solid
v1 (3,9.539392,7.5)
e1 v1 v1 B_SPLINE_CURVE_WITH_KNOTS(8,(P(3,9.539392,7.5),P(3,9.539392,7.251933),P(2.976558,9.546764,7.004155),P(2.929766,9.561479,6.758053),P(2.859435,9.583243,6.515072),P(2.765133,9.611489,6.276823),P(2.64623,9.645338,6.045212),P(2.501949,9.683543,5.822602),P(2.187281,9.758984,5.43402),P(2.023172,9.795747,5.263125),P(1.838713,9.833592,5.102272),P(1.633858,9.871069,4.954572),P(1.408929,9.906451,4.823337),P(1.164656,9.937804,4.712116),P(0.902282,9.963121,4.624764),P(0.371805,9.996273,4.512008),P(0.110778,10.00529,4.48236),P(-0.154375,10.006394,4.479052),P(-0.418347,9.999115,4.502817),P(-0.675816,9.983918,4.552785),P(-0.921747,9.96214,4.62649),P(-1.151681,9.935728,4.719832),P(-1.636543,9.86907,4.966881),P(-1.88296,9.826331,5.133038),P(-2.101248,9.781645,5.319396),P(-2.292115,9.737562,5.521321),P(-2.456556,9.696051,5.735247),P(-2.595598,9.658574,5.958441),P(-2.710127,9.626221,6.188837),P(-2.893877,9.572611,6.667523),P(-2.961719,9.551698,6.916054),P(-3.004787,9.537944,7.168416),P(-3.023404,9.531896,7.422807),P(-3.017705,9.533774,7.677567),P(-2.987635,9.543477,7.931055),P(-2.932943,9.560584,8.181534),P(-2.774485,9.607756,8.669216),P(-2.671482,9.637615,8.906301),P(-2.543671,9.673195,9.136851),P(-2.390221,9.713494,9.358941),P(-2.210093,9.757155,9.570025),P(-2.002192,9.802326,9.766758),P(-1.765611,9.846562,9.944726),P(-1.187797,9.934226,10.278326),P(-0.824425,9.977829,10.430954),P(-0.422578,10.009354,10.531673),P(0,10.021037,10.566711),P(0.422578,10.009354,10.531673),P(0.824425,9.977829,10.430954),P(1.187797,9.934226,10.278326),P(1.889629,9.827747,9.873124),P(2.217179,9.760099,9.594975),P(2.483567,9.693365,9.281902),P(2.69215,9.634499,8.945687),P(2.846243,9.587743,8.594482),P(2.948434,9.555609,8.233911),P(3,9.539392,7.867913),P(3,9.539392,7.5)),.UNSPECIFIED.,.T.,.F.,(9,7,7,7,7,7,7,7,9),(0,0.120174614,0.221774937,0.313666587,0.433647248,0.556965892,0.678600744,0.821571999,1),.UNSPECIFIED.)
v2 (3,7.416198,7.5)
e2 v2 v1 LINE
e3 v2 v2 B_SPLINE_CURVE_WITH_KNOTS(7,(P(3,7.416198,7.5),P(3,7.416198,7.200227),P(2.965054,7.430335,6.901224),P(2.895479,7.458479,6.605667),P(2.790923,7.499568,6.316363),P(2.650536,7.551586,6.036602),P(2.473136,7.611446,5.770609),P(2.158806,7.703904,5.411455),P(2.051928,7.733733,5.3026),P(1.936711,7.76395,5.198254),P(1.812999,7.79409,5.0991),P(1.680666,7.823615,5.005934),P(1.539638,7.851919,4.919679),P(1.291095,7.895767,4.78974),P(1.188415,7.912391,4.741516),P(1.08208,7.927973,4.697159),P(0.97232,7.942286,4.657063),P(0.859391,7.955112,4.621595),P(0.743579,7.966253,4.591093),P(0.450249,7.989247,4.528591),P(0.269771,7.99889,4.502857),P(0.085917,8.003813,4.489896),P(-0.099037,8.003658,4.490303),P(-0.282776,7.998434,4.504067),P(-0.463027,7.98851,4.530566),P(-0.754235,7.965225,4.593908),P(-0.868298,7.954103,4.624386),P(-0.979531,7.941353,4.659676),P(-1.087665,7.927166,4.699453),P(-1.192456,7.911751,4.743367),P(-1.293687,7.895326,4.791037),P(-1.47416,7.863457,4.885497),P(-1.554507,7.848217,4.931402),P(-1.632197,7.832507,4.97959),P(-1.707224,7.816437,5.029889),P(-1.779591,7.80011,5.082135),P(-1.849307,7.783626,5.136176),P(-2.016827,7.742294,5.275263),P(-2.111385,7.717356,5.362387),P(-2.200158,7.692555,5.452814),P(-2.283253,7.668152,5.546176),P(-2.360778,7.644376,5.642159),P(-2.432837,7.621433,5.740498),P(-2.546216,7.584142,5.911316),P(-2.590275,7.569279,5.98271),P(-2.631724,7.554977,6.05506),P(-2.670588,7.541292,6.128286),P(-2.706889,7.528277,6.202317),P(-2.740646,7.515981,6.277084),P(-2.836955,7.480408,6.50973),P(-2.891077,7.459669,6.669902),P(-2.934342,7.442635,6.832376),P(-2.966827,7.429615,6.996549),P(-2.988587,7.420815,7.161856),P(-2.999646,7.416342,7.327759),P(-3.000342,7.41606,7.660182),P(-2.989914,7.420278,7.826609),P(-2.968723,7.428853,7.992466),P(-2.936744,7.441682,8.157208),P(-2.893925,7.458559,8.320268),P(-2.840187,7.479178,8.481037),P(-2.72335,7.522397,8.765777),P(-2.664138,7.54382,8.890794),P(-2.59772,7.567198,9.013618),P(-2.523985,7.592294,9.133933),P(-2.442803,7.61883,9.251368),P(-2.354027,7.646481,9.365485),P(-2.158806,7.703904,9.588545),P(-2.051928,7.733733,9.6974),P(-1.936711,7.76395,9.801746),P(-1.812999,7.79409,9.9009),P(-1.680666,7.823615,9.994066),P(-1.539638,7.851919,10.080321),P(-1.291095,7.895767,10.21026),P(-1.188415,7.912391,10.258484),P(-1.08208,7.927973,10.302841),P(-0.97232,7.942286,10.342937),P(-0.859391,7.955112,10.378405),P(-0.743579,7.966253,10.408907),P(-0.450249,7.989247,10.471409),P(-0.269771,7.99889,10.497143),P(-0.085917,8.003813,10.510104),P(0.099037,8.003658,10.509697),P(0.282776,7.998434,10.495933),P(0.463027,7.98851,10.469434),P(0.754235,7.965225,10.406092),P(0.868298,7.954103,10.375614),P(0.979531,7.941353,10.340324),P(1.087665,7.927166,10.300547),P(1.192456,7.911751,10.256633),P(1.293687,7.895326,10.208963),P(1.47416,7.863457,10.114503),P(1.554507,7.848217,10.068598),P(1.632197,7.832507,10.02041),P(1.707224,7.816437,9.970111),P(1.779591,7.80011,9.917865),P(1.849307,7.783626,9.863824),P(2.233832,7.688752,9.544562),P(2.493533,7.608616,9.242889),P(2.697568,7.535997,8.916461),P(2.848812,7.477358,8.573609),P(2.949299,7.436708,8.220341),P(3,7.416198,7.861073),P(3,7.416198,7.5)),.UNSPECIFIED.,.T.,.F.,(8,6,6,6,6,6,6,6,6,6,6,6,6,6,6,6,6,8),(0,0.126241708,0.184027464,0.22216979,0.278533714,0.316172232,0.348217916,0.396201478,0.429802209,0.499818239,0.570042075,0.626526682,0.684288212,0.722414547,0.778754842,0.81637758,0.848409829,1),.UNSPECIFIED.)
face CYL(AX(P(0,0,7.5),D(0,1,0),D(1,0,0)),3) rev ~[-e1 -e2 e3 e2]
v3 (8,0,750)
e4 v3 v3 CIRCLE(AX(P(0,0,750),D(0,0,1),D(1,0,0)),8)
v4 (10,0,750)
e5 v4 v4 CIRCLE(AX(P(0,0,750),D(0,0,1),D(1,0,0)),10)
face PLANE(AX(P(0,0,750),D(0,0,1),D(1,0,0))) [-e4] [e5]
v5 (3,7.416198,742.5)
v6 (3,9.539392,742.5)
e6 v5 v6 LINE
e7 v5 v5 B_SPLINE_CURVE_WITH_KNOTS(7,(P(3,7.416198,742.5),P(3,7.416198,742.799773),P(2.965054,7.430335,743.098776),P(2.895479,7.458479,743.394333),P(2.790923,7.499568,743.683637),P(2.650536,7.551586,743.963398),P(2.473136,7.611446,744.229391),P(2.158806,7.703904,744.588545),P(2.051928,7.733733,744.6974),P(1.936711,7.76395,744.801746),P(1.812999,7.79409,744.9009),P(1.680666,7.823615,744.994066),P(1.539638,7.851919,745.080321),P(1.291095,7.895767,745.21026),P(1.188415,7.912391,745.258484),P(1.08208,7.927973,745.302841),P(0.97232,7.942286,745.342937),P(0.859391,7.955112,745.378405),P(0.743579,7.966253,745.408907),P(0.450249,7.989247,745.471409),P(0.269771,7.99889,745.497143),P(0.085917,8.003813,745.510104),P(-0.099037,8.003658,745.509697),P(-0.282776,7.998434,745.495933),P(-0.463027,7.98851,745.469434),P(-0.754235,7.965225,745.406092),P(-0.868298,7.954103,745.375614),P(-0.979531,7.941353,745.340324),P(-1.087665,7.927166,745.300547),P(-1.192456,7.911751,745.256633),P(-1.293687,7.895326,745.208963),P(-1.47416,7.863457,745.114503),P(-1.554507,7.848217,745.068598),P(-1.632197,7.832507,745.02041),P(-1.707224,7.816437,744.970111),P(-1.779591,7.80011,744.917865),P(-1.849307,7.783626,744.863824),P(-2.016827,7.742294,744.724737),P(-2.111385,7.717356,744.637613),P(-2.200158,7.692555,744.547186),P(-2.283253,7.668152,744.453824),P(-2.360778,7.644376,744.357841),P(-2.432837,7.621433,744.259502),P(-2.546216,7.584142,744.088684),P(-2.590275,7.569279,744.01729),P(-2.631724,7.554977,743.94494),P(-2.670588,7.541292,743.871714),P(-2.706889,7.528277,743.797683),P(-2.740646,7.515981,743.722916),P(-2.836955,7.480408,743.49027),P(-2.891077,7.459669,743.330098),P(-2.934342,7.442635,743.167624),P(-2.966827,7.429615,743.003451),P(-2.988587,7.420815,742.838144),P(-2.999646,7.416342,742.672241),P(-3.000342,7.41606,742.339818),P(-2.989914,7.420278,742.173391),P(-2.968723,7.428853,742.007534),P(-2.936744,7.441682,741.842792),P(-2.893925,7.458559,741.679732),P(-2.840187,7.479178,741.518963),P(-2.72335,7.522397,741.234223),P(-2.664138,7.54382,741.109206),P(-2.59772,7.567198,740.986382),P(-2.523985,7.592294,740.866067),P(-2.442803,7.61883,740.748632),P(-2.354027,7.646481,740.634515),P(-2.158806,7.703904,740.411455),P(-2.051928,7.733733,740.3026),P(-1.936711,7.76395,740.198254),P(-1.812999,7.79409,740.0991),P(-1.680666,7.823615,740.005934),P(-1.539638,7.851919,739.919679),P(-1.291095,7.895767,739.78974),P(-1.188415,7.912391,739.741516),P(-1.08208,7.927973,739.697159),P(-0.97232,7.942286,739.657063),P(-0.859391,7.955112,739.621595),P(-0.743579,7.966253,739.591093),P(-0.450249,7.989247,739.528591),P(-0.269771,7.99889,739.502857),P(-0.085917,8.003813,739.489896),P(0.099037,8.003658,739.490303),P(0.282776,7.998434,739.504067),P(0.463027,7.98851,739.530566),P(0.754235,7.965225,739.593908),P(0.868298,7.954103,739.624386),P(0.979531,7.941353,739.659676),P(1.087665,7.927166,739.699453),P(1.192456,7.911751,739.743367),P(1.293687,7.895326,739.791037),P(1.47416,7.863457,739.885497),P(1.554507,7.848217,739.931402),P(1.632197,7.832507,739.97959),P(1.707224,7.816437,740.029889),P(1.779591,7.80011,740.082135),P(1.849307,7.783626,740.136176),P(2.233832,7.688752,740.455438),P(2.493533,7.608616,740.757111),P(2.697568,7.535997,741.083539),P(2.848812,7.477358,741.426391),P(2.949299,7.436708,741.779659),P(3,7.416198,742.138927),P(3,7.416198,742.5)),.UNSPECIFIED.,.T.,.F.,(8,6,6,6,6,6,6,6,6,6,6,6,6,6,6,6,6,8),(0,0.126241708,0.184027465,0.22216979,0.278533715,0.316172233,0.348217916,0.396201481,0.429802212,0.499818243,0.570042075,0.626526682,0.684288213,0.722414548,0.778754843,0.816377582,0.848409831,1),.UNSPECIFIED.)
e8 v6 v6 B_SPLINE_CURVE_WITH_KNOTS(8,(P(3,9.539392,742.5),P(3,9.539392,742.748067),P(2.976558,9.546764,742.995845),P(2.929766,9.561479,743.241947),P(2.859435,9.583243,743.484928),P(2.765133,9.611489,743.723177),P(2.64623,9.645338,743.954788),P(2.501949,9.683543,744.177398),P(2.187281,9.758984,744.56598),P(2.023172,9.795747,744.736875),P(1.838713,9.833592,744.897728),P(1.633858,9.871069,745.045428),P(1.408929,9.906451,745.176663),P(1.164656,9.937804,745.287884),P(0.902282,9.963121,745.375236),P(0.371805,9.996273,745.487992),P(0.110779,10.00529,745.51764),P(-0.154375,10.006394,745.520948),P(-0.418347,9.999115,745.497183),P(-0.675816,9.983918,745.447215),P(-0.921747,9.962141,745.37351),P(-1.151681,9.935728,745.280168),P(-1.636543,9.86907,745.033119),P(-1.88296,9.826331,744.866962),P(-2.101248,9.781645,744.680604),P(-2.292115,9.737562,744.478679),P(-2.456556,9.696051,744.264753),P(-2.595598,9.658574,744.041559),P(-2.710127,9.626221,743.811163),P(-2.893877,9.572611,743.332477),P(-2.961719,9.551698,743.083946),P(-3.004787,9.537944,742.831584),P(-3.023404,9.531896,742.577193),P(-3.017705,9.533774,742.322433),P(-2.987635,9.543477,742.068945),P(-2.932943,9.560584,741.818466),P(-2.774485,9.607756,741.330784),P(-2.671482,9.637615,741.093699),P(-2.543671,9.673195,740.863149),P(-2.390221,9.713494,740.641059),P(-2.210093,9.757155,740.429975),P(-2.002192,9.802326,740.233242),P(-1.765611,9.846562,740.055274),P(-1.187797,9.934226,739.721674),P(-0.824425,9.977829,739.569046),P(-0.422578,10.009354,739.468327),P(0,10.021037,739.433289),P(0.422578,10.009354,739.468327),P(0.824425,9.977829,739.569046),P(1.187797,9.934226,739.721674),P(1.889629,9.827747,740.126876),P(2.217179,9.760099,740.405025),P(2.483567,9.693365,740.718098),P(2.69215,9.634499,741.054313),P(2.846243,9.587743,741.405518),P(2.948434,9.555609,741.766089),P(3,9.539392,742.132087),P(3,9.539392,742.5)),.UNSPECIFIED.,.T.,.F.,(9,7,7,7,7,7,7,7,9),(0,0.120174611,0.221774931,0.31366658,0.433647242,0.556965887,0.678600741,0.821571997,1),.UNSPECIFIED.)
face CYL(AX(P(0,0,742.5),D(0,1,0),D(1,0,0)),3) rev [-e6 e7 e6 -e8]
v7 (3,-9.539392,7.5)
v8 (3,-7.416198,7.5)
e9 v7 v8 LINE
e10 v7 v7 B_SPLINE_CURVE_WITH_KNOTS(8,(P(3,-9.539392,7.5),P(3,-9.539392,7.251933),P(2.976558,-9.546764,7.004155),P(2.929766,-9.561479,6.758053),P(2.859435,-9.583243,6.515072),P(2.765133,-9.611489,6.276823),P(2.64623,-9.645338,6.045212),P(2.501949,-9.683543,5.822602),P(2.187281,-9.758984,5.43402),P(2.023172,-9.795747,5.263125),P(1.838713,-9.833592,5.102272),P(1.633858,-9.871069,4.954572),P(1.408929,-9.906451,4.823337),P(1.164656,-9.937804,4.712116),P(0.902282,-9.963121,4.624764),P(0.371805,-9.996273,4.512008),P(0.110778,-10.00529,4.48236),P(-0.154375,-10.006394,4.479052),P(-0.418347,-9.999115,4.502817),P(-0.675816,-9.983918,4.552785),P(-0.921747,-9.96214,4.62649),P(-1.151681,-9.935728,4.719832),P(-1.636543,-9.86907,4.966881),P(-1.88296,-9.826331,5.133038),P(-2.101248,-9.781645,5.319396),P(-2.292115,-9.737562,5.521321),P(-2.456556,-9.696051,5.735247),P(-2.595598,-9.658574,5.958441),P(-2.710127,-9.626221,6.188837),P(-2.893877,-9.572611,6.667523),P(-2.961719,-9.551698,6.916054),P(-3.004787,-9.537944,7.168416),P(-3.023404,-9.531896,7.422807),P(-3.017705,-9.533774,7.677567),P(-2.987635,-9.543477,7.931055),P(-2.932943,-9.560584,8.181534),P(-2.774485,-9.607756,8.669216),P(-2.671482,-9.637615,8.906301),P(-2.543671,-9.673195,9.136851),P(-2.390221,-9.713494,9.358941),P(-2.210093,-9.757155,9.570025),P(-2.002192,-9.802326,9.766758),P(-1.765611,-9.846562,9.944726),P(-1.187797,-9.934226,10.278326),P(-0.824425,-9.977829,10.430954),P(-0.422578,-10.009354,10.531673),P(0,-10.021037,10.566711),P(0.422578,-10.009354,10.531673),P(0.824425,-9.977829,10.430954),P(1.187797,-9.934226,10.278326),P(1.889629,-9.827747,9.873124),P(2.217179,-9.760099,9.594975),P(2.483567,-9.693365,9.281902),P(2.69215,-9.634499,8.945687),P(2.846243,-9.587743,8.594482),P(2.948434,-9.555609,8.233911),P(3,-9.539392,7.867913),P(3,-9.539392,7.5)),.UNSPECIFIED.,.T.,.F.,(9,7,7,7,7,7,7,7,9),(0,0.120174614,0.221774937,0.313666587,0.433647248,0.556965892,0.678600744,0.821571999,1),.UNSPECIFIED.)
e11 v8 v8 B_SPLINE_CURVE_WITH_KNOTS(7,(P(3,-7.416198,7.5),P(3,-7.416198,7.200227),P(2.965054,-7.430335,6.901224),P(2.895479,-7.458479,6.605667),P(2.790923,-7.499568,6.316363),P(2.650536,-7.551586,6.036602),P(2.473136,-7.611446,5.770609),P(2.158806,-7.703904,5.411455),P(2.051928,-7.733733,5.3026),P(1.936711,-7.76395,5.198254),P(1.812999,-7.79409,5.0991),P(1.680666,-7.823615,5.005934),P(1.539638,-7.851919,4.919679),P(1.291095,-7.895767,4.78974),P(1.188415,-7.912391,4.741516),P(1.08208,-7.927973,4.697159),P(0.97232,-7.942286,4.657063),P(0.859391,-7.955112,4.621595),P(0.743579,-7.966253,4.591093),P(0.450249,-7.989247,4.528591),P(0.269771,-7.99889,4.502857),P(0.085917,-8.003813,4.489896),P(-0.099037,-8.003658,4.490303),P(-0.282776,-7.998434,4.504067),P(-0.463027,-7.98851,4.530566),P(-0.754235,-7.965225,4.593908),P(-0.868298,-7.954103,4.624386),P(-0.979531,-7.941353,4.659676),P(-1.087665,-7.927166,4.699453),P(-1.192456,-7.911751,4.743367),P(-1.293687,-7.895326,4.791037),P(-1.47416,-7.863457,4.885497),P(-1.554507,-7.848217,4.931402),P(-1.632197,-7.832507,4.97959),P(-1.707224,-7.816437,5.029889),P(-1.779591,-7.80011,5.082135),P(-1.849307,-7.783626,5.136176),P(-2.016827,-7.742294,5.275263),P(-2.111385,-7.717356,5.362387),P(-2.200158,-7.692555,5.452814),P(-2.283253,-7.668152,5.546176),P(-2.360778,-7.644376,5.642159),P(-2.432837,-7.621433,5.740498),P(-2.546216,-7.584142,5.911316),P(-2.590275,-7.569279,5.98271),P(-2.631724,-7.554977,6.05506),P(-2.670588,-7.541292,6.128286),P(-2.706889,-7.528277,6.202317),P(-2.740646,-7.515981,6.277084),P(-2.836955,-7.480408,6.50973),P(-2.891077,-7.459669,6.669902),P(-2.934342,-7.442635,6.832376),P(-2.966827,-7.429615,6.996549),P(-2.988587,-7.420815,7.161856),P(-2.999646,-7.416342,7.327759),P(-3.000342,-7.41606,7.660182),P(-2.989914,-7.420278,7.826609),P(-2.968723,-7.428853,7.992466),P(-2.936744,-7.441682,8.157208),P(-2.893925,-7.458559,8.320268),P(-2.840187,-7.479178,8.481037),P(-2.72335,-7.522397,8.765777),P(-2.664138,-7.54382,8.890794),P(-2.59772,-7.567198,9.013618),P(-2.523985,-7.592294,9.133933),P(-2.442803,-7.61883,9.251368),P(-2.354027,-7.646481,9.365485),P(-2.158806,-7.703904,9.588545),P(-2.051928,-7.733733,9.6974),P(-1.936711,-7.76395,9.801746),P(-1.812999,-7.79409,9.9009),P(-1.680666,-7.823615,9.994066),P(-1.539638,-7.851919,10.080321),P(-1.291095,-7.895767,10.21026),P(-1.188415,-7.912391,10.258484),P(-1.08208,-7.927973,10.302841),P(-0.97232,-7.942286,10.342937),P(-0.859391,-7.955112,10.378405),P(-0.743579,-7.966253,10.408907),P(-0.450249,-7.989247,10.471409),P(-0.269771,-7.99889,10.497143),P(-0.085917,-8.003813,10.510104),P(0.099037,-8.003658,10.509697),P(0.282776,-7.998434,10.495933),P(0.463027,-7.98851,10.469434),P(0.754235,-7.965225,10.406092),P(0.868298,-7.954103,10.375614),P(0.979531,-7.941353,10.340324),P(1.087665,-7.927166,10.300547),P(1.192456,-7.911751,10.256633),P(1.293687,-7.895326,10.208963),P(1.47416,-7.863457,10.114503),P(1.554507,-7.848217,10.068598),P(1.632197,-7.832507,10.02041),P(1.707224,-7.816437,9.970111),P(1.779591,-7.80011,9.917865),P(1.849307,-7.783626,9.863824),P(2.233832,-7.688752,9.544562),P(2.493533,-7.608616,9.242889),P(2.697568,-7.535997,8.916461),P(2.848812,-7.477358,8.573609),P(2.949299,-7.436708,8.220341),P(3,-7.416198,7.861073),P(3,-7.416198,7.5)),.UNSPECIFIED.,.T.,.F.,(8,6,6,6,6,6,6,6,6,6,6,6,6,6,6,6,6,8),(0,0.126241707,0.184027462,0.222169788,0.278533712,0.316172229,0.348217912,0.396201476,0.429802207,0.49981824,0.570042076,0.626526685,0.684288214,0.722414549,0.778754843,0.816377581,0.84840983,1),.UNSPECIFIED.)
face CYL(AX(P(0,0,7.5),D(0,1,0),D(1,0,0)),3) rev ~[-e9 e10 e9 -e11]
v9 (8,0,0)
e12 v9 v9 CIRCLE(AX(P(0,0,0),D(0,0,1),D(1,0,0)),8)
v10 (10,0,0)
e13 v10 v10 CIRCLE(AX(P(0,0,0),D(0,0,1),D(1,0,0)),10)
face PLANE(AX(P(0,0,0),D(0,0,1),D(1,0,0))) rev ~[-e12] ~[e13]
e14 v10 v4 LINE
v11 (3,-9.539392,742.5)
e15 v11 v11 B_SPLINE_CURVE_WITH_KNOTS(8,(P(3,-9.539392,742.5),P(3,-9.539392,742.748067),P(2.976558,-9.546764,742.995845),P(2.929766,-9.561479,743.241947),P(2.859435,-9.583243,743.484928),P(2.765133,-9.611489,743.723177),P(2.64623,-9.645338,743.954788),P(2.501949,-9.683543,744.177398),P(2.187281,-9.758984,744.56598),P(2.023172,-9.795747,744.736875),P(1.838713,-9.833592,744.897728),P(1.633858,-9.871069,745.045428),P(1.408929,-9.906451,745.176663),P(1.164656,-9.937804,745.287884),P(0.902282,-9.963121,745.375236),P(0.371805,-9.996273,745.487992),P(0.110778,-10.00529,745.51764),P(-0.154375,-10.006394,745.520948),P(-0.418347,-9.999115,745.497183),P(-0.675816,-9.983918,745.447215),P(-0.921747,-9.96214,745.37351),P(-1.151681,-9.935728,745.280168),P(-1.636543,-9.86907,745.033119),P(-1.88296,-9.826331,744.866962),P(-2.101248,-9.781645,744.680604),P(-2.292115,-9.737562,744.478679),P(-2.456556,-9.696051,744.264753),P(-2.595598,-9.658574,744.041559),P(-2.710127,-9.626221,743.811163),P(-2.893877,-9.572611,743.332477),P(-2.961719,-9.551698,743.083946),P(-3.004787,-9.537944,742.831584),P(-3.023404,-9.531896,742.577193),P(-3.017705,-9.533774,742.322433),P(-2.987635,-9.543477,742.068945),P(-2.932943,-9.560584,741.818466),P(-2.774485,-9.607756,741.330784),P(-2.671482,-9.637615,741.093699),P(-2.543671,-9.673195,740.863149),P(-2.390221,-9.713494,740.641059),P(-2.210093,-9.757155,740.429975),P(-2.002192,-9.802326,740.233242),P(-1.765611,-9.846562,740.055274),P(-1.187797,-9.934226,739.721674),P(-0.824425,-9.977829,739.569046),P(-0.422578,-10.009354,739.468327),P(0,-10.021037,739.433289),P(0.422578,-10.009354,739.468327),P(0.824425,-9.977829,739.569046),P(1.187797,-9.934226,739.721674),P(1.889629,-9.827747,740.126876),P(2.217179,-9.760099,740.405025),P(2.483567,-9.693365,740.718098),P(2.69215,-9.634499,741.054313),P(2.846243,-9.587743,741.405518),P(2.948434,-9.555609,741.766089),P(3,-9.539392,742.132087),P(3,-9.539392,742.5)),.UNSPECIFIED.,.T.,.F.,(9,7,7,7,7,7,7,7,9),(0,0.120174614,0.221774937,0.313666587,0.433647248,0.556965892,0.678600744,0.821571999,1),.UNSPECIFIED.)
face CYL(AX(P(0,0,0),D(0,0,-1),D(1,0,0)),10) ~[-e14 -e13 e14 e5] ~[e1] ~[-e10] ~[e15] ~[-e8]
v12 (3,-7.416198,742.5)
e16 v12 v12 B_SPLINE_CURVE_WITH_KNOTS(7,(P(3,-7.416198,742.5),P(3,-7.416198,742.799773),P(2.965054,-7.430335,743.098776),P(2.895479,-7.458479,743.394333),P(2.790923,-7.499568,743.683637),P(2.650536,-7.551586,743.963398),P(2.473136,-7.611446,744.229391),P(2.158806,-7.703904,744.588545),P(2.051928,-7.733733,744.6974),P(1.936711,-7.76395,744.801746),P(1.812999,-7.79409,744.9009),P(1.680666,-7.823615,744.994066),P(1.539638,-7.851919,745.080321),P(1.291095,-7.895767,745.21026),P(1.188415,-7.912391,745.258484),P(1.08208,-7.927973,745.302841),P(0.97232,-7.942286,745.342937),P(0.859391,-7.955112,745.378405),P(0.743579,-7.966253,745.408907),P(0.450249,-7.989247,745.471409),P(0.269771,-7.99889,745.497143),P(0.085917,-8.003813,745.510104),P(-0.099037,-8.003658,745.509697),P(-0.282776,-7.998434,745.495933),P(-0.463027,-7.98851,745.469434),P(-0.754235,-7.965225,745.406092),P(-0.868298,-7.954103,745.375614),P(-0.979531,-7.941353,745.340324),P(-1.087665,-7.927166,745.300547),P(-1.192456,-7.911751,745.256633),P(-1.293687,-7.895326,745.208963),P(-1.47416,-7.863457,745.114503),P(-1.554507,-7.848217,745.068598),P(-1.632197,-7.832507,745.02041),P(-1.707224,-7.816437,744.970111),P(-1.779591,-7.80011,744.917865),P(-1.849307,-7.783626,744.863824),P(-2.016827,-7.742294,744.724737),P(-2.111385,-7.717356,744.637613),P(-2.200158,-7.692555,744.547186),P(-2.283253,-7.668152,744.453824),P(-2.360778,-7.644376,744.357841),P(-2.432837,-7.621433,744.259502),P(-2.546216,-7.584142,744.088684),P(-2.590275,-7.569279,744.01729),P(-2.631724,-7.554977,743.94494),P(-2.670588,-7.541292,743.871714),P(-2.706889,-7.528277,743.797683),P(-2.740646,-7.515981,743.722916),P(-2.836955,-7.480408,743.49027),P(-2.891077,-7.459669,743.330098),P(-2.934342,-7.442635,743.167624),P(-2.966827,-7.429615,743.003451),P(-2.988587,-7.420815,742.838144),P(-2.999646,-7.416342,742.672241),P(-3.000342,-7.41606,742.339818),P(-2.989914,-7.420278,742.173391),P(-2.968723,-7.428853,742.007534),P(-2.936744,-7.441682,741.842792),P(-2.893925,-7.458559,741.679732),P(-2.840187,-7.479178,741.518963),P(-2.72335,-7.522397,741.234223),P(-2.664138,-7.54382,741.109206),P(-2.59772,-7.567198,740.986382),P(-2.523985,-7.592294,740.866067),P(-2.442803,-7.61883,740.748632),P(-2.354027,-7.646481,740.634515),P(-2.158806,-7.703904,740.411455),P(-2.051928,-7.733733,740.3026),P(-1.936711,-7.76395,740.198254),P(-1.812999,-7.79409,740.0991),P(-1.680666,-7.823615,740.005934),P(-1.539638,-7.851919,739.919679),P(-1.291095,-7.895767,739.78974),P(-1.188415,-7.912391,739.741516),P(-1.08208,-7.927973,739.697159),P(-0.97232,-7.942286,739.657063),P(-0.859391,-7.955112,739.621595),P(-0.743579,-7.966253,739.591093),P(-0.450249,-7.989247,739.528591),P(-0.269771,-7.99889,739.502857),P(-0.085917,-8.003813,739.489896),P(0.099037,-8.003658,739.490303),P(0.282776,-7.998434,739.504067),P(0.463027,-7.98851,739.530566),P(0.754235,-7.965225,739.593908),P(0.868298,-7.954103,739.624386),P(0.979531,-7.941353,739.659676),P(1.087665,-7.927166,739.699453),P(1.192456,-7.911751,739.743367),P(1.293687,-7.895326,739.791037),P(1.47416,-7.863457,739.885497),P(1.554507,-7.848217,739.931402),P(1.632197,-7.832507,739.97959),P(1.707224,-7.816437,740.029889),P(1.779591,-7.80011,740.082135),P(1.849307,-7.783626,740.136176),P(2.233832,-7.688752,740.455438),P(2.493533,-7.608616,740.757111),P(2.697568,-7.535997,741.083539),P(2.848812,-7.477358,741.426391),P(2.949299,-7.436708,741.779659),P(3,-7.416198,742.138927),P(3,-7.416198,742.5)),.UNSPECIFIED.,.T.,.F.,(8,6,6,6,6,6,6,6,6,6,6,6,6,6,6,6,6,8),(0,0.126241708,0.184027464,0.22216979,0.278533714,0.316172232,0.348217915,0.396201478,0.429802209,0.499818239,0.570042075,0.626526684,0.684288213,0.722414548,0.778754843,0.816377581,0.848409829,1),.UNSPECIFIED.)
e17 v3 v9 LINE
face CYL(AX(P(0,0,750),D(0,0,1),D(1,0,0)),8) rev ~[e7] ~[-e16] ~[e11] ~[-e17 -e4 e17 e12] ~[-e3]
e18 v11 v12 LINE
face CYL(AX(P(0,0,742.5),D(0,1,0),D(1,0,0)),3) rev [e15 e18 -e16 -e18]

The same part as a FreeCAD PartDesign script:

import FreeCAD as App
import Part
import Sketcher
from FreeCAD import Vector

doc = App.newDocument("Part")
body = doc.addObject("PartDesign::Body", "Body")

sketch1 = doc.addObject("Sketcher::SketchObject", "Sketch")
body.addObject(sketch1)
sketch1.AttachmentSupport = (doc.XY_Plane, [""])
sketch1.MapMode = "FlatFace"
sketch1.addGeometry(Part.Circle(Vector(0, 0, 0), Vector(0, 0, 1), 10), False)
sketch1.addConstraint(Sketcher.Constraint("Coincident", 0, 3, -1, 1))
sketch1.addConstraint(Sketcher.Constraint("Diameter", 0, 20.0))
pad1 = doc.addObject("PartDesign::Pad", "Pad")
body.addObject(pad1)
pad1.Profile = sketch1
pad1.Length = 750

sketch2 = doc.addObject("Sketcher::SketchObject", "Sketch001")
body.addObject(sketch2)
sketch2.AttachmentSupport = (doc.XY_Plane, [""])
sketch2.MapMode = "FlatFace"
sketch2.AttachmentOffset = App.Placement(Vector(0, 0, 750), App.Rotation())
sketch2.addGeometry(Part.Circle(Vector(0, 0, 0), Vector(0, 0, 1), 8), False)
sketch2.addConstraint(Sketcher.Constraint("Coincident", 0, 3, -1, 1))
sketch2.addConstraint(Sketcher.Constraint("Diameter", 0, 16.0))
pocket1 = doc.addObject("PartDesign::Pocket", "Pocket")
body.addObject(pocket1)
pocket1.Profile = sketch2
pocket1.Type = "ThroughAll"

sketch3 = doc.addObject("Sketcher::SketchObject", "Sketch002")
body.addObject(sketch3)
sketch3.AttachmentSupport = (doc.XZ_Plane, [""])
sketch3.MapMode = "FlatFace"
sketch3.addGeometry(Part.Circle(Vector(0, 7.5, 0), Vector(0, 0, 1), 3), False)
sketch3.addConstraint(Sketcher.Constraint("PointOnObject", 0, 3, -2))
sketch3.addConstraint(Sketcher.Constraint("Diameter", 0, 6.0))
sketch3.addConstraint(Sketcher.Constraint("DistanceY", -1, 1, 0, 3, 7.5))
pocket2 = doc.addObject("PartDesign::Pocket", "Pocket001")
body.addObject(pocket2)
pocket2.Profile = sketch3
pocket2.Length = 22
pocket2.Midplane = True
doc.recompute()

datumplane = doc.addObject("PartDesign::Plane", "DatumPlane")
body.addObject(datumplane)
datumplane.AttachmentSupport = (doc.XY_Plane, [""])
datumplane.MapMode = "FlatFace"
datumplane.AttachmentOffset = App.Placement(Vector(0, 0, 375), App.Rotation())
mirrored = doc.addObject("PartDesign::Mirrored", "Mirrored")
body.addObject(mirrored)
mirrored.Originals = [pocket2]
mirrored.MirrorPlane = (datumplane, [""])
body.Tip = mirrored

doc.recompute()
